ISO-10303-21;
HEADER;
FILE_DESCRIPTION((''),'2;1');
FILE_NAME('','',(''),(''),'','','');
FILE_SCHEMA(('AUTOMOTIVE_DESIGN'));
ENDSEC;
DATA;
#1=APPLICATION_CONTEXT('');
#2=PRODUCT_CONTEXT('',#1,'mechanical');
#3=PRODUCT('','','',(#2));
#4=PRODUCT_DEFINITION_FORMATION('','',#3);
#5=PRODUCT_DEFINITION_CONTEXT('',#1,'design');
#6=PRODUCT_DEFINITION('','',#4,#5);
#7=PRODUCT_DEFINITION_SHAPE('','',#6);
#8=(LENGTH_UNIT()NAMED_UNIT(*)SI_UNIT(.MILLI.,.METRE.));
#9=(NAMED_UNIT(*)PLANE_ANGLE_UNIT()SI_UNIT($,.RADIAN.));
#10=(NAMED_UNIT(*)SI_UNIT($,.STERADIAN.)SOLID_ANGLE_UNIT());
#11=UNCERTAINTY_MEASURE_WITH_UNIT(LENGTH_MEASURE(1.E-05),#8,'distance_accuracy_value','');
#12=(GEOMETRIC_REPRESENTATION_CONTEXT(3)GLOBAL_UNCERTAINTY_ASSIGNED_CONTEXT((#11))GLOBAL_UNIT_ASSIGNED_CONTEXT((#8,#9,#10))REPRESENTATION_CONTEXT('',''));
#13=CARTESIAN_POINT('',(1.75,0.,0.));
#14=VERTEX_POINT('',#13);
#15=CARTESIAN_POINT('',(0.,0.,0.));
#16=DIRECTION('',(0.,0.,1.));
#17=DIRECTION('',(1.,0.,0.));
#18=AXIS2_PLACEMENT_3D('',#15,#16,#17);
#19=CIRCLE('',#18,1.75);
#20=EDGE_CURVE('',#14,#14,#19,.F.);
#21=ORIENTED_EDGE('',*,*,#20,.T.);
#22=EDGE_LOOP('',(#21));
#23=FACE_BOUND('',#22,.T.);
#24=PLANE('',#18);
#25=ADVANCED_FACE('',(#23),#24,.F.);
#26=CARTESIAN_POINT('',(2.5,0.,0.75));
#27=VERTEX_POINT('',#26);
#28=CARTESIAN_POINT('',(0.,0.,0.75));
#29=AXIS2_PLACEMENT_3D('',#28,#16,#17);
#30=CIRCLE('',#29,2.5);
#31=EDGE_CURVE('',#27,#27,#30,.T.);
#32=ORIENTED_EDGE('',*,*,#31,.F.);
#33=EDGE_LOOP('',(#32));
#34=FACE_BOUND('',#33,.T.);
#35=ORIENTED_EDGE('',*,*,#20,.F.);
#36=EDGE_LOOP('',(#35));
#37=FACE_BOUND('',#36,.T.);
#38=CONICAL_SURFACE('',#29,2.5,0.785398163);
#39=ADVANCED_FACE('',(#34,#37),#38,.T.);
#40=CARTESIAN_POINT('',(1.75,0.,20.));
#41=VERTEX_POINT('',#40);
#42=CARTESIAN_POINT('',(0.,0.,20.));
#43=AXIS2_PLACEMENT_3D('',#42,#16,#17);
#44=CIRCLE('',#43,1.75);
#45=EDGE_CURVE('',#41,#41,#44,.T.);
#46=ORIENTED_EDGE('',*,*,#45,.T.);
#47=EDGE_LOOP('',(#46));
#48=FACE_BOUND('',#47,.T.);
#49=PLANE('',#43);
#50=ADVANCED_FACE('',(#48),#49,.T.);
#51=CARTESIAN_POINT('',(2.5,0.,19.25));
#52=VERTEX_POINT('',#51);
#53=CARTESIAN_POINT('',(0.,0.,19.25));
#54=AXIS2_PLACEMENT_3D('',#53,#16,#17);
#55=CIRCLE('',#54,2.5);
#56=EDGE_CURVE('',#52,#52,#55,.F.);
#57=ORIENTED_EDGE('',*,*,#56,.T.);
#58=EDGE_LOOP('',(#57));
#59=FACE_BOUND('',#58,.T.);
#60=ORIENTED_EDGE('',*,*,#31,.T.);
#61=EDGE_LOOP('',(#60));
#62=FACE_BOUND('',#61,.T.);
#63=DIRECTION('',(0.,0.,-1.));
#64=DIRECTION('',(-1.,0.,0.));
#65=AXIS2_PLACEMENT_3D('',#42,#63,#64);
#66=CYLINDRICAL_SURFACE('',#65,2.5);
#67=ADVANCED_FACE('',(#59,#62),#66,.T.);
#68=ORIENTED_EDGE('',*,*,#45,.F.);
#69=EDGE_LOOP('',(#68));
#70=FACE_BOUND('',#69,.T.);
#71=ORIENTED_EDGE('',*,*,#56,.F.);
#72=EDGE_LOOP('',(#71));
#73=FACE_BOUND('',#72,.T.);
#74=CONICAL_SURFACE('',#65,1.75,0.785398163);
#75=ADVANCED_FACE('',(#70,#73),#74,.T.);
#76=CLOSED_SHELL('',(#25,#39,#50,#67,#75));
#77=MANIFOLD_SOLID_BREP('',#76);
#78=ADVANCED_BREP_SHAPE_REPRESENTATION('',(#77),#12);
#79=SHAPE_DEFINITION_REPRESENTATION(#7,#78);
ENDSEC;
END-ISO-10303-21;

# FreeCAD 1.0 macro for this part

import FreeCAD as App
import Part
import Sketcher

V = App.Vector
Q = App.Units.Quantity


def edges_at(feature, points):
    """Names of the edges that pass closest to the given points."""
    edges = feature.Shape.Edges
    near = lambda p: min(range(len(edges)), key=lambda i: edges[i].distToShape(Part.Vertex(*p))[0])
    return sorted({f"Edge{near(p) + 1}" for p in points})

doc = App.newDocument("Part")
body = doc.addObject("PartDesign::Body", "Body")

# Sketch on XY plane
sketch1 = body.newObject("Sketcher::SketchObject", "Sketch")
sketch1.AttachmentSupport = (doc.getObject("XY_Plane"), [""])
sketch1.MapMode = "FlatFace"
sketch1.addGeometry(Part.Circle(V(0, 0, 0), V(0, 0, 1), 2.5), False)
sketch1.addConstraint([
    Sketcher.Constraint("Coincident", 0, 3, -1, 1),
    Sketcher.Constraint("Diameter", 0, Q("5 mm")),
])
pad1 = body.newObject("PartDesign::Pad", "Pad")
pad1.Profile = sketch1
pad1.Length = 20
doc.recompute()

chamfer = body.newObject("PartDesign::Chamfer", "Chamfer")
chamfer.Base = (pad1, edges_at(pad1, [(-2.5, 0, 0), (-2.5, 0, 20)]))
chamfer.Size = 0.75

doc.recompute()
